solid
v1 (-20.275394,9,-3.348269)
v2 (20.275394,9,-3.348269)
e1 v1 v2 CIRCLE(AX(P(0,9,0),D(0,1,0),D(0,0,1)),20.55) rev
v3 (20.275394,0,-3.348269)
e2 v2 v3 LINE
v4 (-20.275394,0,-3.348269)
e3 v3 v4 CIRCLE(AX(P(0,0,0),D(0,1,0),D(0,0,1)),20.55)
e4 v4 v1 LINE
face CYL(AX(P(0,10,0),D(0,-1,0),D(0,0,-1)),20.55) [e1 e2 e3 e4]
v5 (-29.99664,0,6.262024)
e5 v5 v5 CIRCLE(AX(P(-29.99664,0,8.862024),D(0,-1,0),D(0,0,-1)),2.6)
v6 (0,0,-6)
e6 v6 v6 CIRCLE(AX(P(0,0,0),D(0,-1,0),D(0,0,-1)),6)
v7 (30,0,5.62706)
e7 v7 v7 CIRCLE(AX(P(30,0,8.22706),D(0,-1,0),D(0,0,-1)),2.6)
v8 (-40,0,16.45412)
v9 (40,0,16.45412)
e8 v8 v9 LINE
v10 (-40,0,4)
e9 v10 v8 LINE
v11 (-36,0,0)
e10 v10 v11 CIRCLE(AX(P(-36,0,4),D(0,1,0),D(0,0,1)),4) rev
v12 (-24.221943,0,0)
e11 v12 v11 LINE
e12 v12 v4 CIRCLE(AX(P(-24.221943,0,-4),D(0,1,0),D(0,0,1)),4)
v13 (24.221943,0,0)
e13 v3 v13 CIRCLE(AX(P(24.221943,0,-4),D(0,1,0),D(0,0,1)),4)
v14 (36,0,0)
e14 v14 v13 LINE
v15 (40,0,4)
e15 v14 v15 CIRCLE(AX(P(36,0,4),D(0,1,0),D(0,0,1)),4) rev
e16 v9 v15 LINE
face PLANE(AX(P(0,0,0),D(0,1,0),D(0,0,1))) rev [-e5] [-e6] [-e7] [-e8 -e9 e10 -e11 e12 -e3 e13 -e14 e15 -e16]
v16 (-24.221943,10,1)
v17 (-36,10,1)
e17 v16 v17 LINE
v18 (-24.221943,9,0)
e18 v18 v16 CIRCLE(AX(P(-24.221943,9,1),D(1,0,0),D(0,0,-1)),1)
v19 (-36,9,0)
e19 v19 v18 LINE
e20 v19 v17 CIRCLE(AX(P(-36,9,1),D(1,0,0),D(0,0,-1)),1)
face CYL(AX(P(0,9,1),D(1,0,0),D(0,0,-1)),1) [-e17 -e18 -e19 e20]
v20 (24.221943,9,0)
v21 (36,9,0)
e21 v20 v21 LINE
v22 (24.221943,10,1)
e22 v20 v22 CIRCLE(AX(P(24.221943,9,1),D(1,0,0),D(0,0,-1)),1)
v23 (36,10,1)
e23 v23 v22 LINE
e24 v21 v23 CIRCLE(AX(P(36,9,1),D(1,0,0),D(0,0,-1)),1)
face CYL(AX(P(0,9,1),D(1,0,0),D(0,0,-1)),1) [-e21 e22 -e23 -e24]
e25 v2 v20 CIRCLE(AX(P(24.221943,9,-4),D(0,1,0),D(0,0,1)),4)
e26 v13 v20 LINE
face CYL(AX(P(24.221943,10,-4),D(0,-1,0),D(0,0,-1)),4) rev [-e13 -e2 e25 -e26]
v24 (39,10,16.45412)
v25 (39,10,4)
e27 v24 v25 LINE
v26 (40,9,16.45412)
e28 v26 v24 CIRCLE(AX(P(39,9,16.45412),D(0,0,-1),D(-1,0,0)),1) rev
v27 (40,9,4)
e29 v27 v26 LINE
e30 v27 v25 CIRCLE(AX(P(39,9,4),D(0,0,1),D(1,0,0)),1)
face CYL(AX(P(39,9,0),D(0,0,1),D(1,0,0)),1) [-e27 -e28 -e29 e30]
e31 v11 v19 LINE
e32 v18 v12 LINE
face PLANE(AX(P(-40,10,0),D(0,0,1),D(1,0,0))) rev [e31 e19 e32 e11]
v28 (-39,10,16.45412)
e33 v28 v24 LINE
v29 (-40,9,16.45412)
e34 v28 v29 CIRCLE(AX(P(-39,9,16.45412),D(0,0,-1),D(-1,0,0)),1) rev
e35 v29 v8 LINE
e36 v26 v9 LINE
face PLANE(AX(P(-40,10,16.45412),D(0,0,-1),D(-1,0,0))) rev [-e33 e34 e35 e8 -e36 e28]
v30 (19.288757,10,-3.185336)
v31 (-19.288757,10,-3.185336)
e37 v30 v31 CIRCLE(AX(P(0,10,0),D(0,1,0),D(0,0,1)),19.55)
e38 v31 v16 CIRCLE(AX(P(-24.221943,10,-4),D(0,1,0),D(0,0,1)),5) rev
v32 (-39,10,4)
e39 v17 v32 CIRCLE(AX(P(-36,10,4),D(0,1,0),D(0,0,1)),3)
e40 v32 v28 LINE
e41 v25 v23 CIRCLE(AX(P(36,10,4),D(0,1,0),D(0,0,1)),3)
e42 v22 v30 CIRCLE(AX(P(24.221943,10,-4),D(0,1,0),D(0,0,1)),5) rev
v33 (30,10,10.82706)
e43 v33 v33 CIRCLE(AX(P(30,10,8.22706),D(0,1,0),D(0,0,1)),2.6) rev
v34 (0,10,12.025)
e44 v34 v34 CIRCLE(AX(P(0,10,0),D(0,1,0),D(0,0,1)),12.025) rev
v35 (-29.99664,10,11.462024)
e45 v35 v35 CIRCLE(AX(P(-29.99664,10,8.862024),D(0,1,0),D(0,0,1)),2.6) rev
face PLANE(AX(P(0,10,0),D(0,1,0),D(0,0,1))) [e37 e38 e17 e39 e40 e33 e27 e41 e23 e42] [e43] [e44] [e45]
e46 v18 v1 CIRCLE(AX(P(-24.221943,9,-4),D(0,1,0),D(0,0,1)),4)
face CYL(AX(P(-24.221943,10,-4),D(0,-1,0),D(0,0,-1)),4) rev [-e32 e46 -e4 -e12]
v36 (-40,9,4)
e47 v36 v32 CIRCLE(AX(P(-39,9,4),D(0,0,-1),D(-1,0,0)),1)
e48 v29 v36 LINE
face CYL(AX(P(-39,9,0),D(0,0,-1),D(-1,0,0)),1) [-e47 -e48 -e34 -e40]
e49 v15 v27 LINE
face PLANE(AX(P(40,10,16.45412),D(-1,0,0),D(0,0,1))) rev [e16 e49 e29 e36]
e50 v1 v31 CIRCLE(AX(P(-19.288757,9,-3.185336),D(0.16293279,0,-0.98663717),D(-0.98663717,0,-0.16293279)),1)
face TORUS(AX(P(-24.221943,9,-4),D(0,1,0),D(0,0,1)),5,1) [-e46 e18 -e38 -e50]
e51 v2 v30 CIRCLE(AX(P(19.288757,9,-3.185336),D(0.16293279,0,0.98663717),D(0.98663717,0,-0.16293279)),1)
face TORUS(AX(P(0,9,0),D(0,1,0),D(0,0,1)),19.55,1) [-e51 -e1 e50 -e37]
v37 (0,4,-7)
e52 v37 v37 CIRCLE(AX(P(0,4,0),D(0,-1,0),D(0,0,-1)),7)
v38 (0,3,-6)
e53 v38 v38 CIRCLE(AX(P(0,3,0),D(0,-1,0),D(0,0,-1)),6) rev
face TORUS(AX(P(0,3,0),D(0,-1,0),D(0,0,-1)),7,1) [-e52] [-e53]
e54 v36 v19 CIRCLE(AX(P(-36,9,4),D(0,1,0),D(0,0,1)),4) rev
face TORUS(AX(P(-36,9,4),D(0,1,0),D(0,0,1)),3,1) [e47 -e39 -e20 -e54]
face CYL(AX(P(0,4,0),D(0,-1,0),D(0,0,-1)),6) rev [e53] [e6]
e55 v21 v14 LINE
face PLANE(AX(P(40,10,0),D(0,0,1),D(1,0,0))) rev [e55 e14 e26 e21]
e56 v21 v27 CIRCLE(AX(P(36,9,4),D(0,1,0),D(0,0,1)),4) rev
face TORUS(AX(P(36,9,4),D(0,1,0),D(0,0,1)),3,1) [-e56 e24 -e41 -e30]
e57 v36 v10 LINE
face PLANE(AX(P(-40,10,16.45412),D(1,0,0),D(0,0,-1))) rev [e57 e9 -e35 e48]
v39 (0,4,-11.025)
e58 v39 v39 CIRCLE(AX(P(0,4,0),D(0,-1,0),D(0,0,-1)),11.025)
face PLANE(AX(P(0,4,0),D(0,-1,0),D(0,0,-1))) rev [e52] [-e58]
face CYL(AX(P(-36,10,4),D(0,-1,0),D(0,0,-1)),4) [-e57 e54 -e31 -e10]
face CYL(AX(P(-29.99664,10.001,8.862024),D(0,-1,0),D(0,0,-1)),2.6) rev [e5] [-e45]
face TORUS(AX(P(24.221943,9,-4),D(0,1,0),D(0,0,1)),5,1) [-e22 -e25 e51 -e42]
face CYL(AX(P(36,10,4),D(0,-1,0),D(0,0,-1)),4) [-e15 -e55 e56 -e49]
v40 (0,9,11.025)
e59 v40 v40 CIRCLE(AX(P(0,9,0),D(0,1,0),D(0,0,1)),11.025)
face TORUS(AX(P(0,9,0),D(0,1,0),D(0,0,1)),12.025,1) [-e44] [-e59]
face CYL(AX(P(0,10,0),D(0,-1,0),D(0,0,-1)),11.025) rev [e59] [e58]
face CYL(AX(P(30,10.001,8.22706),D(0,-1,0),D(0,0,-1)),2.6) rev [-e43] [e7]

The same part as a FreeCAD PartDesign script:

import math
import FreeCAD as App
import Part
import Sketcher

V = App.Vector
Q = App.Units.Quantity


def edges_at(feature, points):
    """Names of the edges that pass closest to the given points."""
    edges = feature.Shape.Edges
    near = lambda p: min(range(len(edges)), key=lambda i: edges[i].distToShape(Part.Vertex(*p))[0])
    return sorted({f"Edge{near(p) + 1}" for p in points})

doc = App.newDocument("Part")
body = doc.addObject("PartDesign::Body", "Body")

sketch1 = doc.addObject("Sketcher::SketchObject", "Sketch")
body.addObject(sketch1)
sketch1.AttachmentSupport = (doc.XZ_Plane, [""])
sketch1.MapMode = "FlatFace"
sketch1.addGeometry([
    Part.LineSegment(V(-40, 16.45412, 0), V(40, 16.45412, 0)),
    Part.LineSegment(V(40, 16.45412, 0), V(40, 0, 0)),
    Part.LineSegment(V(40, 0, 0), V(20.55, 0, 0)),
    Part.ArcOfCircle(Part.Circle(V(0, 0, 0), V(0, 0, 1), 20.55), math.radians(180), math.radians(360)),
    Part.LineSegment(V(-20.55, 0, 0), V(-40, 0, 0)),
    Part.LineSegment(V(-40, 0, 0), V(-40, 16.45412, 0)),
    Part.Circle(V(0, 0, 0), V(0, 0, 1), 11.025),
], False)
sketch1.addConstraint([
    Sketcher.Constraint("Coincident", 0, 2, 1, 1),
    Sketcher.Constraint("Coincident", 1, 2, 2, 1),
    Sketcher.Constraint("Coincident", 2, 2, 3, 2),
    Sketcher.Constraint("Coincident", 3, 1, 4, 1),
    Sketcher.Constraint("Coincident", 4, 2, 5, 1),
    Sketcher.Constraint("Coincident", 5, 2, 0, 1),
    Sketcher.Constraint("Horizontal", 0),
    Sketcher.Constraint("Vertical", 1),
    Sketcher.Constraint("Horizontal", 2),
    Sketcher.Constraint("Horizontal", 4),
    Sketcher.Constraint("Vertical", 5),
    Sketcher.Constraint("Coincident", 3, 3, -1, 1),
    Sketcher.Constraint("Coincident", 6, 3, -1, 1),
    Sketcher.Constraint("Symmetric", 1, 2, 4, 2, -1, 1),
    Sketcher.Constraint("PointOnObject", 1, 2, -1),
    Sketcher.Constraint("Diameter", 6, Q("22.05 mm")),
    Sketcher.Constraint("DistanceX", 0, 1, 0, 2, Q("80 mm")),
    Sketcher.Constraint("Radius", 3, Q("20.55 mm")),
    Sketcher.Constraint("DistanceY", 1, 2, 1, 1, Q("16.45412 mm")),
])
pad1 = doc.addObject("PartDesign::Pad", "Pad")
body.addObject(pad1)
pad1.Profile = sketch1
pad1.Length = 10
pad1.Reversed = True

sketch2 = doc.addObject("Sketcher::SketchObject", "Sketch001")
body.addObject(sketch2)
sketch2.AttachmentSupport = (doc.XZ_Plane, [""])
sketch2.MapMode = "FlatFace"
sketch2.addGeometry([
    Part.Circle(V(0, 0, 0), V(0, 0, 1), 11.025),
    Part.Circle(V(0, 0, 0), V(0, 0, 1), 6),
], False)
sketch2.addConstraint([
    Sketcher.Constraint("Coincident", 0, 3, -1, 1),
    Sketcher.Constraint("Coincident", 1, 3, -1, 1),
    Sketcher.Constraint("Diameter", 1, Q("12 mm")),
    Sketcher.Constraint("Diameter", 0, Q("22.05 mm")),
])
pad2 = doc.addObject("PartDesign::Pad", "Pad001")
body.addObject(pad2)
pad2.Profile = sketch2
pad2.Length = 4
pad2.Reversed = True
doc.recompute()

fillet = doc.addObject("PartDesign::Fillet", "Fillet")
body.addObject(fillet)
fillet.Base = (pad2, edges_at(pad2, [
    (-40, 5, 0),
    (-20.55, 5, 0),
    (20.55, 5, 0),
    (40, 5, 0),
]))
fillet.Radius = 4
doc.recompute()

fillet2 = doc.addObject("PartDesign::Fillet", "Fillet001")
body.addObject(fillet2)
fillet2.Base = (fillet, edges_at(fillet, [
    (40, 10, 10.227),
    (-11.025, 10, 0),
    (-6, 4, 0),
    (-40, 10, 10.227),
    (-30.111, 10, 0),
    (30.111, 10, 0),
    (0, 10, -20.55),
    (38.828, 10, 1.172),
    (-38.828, 10, 1.172),
    (-21.634, 10, -0.95),
    (21.634, 10, -0.95),
]))
fillet2.Radius = 1

sketch3 = doc.addObject("Sketcher::SketchObject", "Sketch002")
body.addObject(sketch3)
sketch3.AttachmentSupport = (doc.XZ_Plane, [""])
sketch3.MapMode = "FlatFace"
sketch3.addGeometry(Part.Circle(V(30, 8.22706, 0), V(0, 0, 1), 2.6), False)
sketch3.addConstraint([
    Sketcher.Constraint("Diameter", 0, Q("5.2 mm")),
    Sketcher.Constraint("DistanceX", -1, 1, 0, 3, Q("30 mm")),
    Sketcher.Constraint("DistanceY", -1, 1, 0, 3, Q("8.22706 mm")),
])
pocket1 = doc.addObject("PartDesign::Pocket", "Pocket")
body.addObject(pocket1)
pocket1.Profile = sketch3
pocket1.Type = "UpToFirst"

sketch4 = doc.addObject("Sketcher::SketchObject", "Sketch003")
body.addObject(sketch4)
sketch4.AttachmentSupport = (doc.XZ_Plane, [""])
sketch4.MapMode = "FlatFace"
sketch4.addGeometry(Part.Circle(V(-29.99664, 8.862024, 0), V(0, 0, 1), 2.6), False)
sketch4.addConstraint([
    Sketcher.Constraint("Diameter", 0, Q("5.2 mm")),
    Sketcher.Constraint("DistanceX", 0, 3, -1, 1, Q("29.99664 mm")),
    Sketcher.Constraint("DistanceY", -1, 1, 0, 3, Q("8.862024 mm")),
])
pocket2 = doc.addObject("PartDesign::Pocket", "Pocket001")
body.addObject(pocket2)
pocket2.Profile = sketch4
pocket2.Type = "UpToFirst"

doc.recompute()
